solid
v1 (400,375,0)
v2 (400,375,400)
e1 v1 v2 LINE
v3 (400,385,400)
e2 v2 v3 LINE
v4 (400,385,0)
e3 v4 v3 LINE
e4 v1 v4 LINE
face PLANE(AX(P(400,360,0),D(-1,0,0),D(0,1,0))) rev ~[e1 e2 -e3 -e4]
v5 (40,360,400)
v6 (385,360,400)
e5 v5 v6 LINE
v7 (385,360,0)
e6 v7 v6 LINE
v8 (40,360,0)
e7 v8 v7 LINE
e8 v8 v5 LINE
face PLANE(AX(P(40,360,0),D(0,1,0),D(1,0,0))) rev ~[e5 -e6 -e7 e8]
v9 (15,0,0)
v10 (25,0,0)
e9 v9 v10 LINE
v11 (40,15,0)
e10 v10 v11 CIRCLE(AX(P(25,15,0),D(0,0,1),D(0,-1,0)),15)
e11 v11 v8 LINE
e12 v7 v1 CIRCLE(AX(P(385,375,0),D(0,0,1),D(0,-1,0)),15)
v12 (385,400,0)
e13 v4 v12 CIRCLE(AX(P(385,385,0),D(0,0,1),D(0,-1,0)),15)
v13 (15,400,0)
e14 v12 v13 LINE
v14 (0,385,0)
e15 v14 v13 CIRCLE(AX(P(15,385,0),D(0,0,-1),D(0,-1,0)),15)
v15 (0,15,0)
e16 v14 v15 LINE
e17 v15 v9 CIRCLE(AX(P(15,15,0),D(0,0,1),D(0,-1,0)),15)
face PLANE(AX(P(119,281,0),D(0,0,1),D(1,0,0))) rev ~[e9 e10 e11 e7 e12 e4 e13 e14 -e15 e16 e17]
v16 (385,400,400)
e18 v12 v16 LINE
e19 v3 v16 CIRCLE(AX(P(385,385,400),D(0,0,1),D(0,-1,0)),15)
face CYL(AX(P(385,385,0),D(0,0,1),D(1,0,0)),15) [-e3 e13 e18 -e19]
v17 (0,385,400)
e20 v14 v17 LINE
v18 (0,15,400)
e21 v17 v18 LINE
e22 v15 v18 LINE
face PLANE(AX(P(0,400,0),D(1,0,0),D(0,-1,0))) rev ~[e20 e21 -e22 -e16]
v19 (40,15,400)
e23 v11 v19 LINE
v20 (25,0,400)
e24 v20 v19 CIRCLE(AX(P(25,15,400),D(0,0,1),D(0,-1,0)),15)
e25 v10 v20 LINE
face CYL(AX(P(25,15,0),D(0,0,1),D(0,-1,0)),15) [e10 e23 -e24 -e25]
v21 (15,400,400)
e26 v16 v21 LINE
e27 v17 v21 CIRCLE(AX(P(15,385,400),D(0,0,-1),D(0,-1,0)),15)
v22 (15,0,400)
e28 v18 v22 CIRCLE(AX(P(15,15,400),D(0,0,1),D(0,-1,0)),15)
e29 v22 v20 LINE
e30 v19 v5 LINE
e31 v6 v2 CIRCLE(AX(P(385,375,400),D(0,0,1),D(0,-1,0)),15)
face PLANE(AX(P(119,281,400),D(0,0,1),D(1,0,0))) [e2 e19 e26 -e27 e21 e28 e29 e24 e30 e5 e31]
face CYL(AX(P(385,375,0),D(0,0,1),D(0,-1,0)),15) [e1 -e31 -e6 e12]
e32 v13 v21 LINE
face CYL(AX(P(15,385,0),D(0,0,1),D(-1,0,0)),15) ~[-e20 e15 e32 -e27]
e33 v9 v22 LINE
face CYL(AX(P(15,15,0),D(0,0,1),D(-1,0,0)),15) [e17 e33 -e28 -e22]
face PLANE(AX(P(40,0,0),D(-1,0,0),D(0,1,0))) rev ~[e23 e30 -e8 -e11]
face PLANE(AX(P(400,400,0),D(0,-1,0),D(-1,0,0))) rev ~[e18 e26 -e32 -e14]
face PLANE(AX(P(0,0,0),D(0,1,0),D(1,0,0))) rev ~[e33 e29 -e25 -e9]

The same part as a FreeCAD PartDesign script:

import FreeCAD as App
import Part
import Sketcher


def edges_at(feature, points):
    """Names of the edges that pass closest to the given points."""
    edges = feature.Shape.Edges
    near = lambda p: min(range(len(edges)), key=lambda i: edges[i].distToShape(Part.Vertex(*p))[0])
    return sorted({f"Edge{near(p) + 1}" for p in points})

doc = App.newDocument("Part")
body = doc.addObject("PartDesign::Body", "Body")

sketch1 = body.newObject("Sketcher::SketchObject", "Sketch")
sketch1.AttachmentSupport = (doc.getObject("XY_Plane"), [""])
sketch1.MapMode = "FlatFace"
sketch1.addGeometry(Part.LineSegment(App.Vector(0, 400, 0), App.Vector(0, 0, 0)), False)
sketch1.addGeometry(Part.LineSegment(App.Vector(0, 0, 0), App.Vector(40, 0, 0)), False)
sketch1.addGeometry(Part.LineSegment(App.Vector(40, 0, 0), App.Vector(40, 360, 0)), False)
sketch1.addGeometry(Part.LineSegment(App.Vector(40, 360, 0), App.Vector(400, 360, 0)), False)
sketch1.addGeometry(Part.LineSegment(App.Vector(400, 360, 0), App.Vector(400, 400, 0)), False)
sketch1.addGeometry(Part.LineSegment(App.Vector(400, 400, 0), App.Vector(0, 400, 0)), False)
sketch1.addConstraint(Sketcher.Constraint("Coincident", 0, 2, 1, 1))
sketch1.addConstraint(Sketcher.Constraint("Coincident", 1, 2, 2, 1))
sketch1.addConstraint(Sketcher.Constraint("Coincident", 2, 2, 3, 1))
sketch1.addConstraint(Sketcher.Constraint("Coincident", 3, 2, 4, 1))
sketch1.addConstraint(Sketcher.Constraint("Coincident", 4, 2, 5, 1))
sketch1.addConstraint(Sketcher.Constraint("Coincident", 5, 2, 0, 1))
sketch1.addConstraint(Sketcher.Constraint("Vertical", 0))
sketch1.addConstraint(Sketcher.Constraint("Horizontal", 1))
sketch1.addConstraint(Sketcher.Constraint("Vertical", 2))
sketch1.addConstraint(Sketcher.Constraint("Horizontal", 3))
sketch1.addConstraint(Sketcher.Constraint("Vertical", 4))
sketch1.addConstraint(Sketcher.Constraint("Horizontal", 5))
sketch1.addConstraint(Sketcher.Constraint("Coincident", 0, 2, -1, 1))
sketch1.addConstraint(Sketcher.Constraint("Equal", 5, 0))
sketch1.addConstraint(Sketcher.Constraint("Equal", 3, 2))
sketch1.addConstraint(Sketcher.Constraint("DistanceX", 1, 1, 1, 2, 40.0))
sketch1.addConstraint(Sketcher.Constraint("DistanceX", 3, 1, 3, 2, 360.0))
pad1 = body.newObject("PartDesign::Pad", "Pad")
pad1.Profile = sketch1
pad1.Length = 400
doc.recompute()

fillet = body.newObject("PartDesign::Fillet", "Fillet")
fillet.Base = (pad1, edges_at(pad1, [
    (40, 0, 200),
    (0, 0, 200),
    (400, 360, 200),
    (400, 400, 200),
]))
fillet.Radius = 15
doc.recompute()

fillet2 = body.newObject("PartDesign::Fillet", "Fillet001")
fillet2.Base = (fillet, edges_at(fillet, [(0, 400, 200)]))
fillet2.Radius = 15

doc.recompute()
